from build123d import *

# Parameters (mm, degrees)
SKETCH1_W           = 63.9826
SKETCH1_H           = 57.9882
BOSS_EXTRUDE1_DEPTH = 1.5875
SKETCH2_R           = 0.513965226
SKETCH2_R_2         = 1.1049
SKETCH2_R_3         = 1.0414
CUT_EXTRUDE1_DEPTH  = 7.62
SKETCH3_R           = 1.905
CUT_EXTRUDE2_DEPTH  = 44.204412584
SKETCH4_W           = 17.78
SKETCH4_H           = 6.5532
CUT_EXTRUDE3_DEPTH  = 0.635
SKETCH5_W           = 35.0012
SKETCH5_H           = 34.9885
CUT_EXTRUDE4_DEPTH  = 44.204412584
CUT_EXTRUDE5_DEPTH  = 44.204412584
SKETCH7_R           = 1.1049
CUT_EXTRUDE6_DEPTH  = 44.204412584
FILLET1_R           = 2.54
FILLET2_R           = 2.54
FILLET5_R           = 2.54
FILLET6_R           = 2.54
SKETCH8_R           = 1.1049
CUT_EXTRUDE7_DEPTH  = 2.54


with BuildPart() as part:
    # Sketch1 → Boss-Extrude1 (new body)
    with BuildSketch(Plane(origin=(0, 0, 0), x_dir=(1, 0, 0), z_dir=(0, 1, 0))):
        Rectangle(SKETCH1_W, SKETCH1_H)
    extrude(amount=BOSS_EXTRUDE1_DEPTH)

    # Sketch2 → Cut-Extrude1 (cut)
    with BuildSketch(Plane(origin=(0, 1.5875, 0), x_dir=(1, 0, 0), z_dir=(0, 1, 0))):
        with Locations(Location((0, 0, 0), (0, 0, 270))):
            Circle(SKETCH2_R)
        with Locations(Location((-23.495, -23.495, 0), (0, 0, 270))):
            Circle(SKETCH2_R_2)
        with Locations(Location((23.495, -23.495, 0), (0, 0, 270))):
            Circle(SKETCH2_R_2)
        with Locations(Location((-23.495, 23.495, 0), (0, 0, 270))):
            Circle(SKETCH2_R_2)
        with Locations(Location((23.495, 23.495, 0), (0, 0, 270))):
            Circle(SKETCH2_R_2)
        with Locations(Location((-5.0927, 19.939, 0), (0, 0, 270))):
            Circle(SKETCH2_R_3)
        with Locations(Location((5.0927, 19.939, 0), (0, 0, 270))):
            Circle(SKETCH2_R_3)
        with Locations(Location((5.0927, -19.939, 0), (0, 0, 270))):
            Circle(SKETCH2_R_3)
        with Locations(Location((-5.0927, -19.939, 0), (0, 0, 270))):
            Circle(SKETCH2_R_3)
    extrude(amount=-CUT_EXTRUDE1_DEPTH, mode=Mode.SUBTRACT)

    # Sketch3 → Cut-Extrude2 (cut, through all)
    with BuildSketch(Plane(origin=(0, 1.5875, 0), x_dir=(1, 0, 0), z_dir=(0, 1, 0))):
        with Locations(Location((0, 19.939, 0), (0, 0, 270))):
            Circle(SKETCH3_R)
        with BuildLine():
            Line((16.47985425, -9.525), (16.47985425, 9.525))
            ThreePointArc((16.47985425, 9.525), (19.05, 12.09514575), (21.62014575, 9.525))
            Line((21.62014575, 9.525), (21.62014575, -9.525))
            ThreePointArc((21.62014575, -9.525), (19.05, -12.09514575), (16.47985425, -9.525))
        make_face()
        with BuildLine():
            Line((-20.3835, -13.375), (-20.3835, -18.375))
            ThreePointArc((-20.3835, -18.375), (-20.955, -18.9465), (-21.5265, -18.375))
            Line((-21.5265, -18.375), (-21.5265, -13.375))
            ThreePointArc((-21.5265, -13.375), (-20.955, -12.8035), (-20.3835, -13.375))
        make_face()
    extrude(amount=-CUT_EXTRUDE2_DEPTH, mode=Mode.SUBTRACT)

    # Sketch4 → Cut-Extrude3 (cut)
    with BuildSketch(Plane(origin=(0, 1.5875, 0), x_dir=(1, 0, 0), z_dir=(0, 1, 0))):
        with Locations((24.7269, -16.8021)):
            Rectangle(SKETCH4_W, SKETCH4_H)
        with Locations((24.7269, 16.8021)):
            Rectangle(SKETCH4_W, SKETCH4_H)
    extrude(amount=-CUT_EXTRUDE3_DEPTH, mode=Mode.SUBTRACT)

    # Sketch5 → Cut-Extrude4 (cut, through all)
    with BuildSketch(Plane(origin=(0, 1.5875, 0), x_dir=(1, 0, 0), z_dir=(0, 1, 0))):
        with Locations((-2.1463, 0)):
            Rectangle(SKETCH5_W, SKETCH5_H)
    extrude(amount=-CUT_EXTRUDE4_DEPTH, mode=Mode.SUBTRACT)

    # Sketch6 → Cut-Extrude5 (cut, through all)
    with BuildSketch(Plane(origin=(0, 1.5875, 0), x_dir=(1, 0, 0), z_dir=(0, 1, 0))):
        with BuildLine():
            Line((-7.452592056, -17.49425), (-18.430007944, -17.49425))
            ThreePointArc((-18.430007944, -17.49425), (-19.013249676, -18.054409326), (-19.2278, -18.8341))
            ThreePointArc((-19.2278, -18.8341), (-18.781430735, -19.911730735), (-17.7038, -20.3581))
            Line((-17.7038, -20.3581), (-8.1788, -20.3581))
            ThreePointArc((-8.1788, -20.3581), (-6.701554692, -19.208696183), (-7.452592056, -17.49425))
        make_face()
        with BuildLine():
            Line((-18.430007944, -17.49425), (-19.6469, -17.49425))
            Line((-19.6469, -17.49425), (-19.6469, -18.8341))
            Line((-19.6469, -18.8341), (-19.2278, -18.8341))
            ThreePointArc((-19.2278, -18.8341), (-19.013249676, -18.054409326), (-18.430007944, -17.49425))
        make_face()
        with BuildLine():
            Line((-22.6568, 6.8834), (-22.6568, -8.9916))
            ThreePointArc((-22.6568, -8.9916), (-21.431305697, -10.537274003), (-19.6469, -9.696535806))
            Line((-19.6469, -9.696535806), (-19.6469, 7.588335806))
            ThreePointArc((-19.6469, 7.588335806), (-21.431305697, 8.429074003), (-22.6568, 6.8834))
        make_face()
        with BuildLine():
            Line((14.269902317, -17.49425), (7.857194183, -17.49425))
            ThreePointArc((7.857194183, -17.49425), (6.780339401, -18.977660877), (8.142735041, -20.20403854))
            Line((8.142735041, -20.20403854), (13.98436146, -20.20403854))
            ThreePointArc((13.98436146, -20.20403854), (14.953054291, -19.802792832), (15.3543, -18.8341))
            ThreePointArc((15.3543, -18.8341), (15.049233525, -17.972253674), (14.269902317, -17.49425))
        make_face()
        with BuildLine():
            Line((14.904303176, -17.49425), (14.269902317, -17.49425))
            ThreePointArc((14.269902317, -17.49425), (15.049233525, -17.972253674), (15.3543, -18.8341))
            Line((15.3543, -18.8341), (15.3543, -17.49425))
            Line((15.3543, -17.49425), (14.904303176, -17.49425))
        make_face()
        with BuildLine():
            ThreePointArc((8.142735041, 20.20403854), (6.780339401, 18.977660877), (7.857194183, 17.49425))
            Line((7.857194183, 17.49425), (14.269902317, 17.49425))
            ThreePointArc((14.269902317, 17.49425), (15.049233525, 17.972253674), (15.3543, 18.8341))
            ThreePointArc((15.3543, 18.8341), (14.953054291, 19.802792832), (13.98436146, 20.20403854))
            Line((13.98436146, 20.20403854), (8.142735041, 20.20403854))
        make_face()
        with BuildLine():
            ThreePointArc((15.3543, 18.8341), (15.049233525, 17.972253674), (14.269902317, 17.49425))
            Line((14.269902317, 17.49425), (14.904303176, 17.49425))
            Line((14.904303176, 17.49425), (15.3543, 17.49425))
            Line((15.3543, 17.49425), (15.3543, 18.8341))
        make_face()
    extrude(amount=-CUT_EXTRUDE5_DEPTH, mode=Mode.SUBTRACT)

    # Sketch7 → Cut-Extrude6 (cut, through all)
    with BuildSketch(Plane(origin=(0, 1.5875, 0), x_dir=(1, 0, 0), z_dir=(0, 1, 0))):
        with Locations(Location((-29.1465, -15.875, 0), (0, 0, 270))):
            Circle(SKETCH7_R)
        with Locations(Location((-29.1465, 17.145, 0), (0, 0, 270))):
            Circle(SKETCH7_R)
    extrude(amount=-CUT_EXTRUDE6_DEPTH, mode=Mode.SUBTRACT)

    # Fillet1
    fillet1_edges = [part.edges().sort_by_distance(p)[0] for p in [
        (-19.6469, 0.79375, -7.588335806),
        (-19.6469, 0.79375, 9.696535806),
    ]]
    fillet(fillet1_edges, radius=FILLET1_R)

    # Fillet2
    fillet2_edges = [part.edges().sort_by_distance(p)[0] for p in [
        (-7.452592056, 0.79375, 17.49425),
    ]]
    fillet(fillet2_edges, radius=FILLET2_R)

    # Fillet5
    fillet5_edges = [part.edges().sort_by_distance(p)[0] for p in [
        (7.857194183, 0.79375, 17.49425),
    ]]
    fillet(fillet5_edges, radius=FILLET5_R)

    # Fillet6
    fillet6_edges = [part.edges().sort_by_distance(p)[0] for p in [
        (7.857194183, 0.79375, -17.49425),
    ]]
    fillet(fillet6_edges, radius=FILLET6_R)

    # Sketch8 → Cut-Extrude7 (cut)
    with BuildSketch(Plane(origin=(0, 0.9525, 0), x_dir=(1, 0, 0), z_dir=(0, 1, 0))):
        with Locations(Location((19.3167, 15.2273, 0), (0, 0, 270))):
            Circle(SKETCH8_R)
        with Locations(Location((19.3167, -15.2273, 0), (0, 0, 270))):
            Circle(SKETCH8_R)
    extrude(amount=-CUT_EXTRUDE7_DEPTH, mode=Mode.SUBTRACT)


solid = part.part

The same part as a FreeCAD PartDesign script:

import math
import FreeCAD as App
import Part
import Sketcher
Q = App.Units.Quantity


def edges_at(feature, points):
    """Names of the edges that pass closest to the given points."""
    edges = feature.Shape.Edges
    near = lambda p: min(range(len(edges)), key=lambda i: edges[i].distToShape(Part.Vertex(*p))[0])
    return sorted({f"Edge{near(p) + 1}" for p in points})

doc = App.newDocument("Part")
body = doc.addObject("PartDesign::Body", "Body")

sketch1 = doc.addObject("Sketcher::SketchObject", "Sketch")
body.addObject(sketch1)
sketch1.AttachmentSupport = (doc.XZ_Plane, [""])
sketch1.MapMode = "FlatFace"
sketch1.addGeometry([
    Part.LineSegment(App.Vector(-32, -29, 0), App.Vector(-32, 29, 0)),
    Part.LineSegment(App.Vector(-32, 29, 0), App.Vector(32, 29, 0)),
    Part.LineSegment(App.Vector(32, 29, 0), App.Vector(32, -29, 0)),
    Part.LineSegment(App.Vector(32, -29, 0), App.Vector(-32, -29, 0)),
], False)
sketch1.addConstraint([
    Sketcher.Constraint("Coincident", 0, 2, 1, 1),
    Sketcher.Constraint("Coincident", 1, 2, 2, 1),
    Sketcher.Constraint("Coincident", 2, 2, 3, 1),
    Sketcher.Constraint("Coincident", 3, 2, 0, 1),
    Sketcher.Constraint("Vertical", 0),
    Sketcher.Constraint("Horizontal", 1),
    Sketcher.Constraint("Vertical", 2),
    Sketcher.Constraint("Horizontal", 3),
    Sketcher.Constraint("Symmetric", 0, 2, 2, 2, -1, 1),
    Sketcher.Constraint("DistanceX", 1, 1, 1, 2, Q("2.519 in")),
    Sketcher.Constraint("DistanceY", 0, 1, 0, 2, Q("2.283 in")),
])
pad1 = doc.addObject("PartDesign::Pad", "Pad")
body.addObject(pad1)
pad1.Profile = sketch1
pad1.Length = Q("0.0625 in")
pad1.Reversed = True

sketch2 = doc.addObject("Sketcher::SketchObject", "Sketch001")
body.addObject(sketch2)
sketch2.AttachmentSupport = (doc.XZ_Plane, [""])
sketch2.MapMode = "FlatFace"
sketch2.AttachmentOffset = App.Placement(App.Vector(0, 0, -0.0625 * 25.4), App.Rotation())
sketch2.addGeometry([
    Part.Circle(App.Vector(0, 0, 0), App.Vector(0, 0, 1), 0.5),
    Part.Circle(App.Vector(-23.5, 23.5, 0), App.Vector(0, 0, 1), 1.1),
    Part.Circle(App.Vector(23.5, 23.5, 0), App.Vector(0, 0, 1), 1.1),
    Part.Circle(App.Vector(-23.5, -23.5, 0), App.Vector(0, 0, 1), 1.1),
    Part.Circle(App.Vector(23.5, -23.5, 0), App.Vector(0, 0, 1), 1.1),
    Part.Circle(App.Vector(-5.1, -19.9, 0), App.Vector(0, 0, 1), 1),
    Part.Circle(App.Vector(5.1, -19.9, 0), App.Vector(0, 0, 1), 1),
    Part.Circle(App.Vector(5.1, 19.9, 0), App.Vector(0, 0, 1), 1),
    Part.Circle(App.Vector(-5.1, 19.9, 0), App.Vector(0, 0, 1), 1),
], False)
sketch2.addConstraint([
    Sketcher.Constraint("Coincident", 0, 3, -1, 1),
    Sketcher.Constraint("Equal", 1, 2),
    Sketcher.Constraint("Equal", 2, 3),
    Sketcher.Constraint("Equal", 3, 4),
    Sketcher.Constraint("Equal", 5, 6),
    Sketcher.Constraint("Equal", 6, 7),
    Sketcher.Constraint("Equal", 7, 8),
    Sketcher.Constraint("Symmetric", 2, 3, 3, 3, -1, 1),
    Sketcher.Constraint("Symmetric", 1, 3, 4, 3, -1, 1),
    Sketcher.Constraint("Symmetric", 5, 3, 7, 3, -1, 1),
    Sketcher.Constraint("Symmetric", 6, 3, 8, 3, -1, 1),
    Sketcher.Constraint("Symmetric", 1, 3, 2, 3, -2),
    Sketcher.Constraint("Symmetric", 5, 3, 6, 3, -2),
    Sketcher.Constraint("Diameter", 1, Q("0.087 in")),
    Sketcher.Constraint("Diameter", 5, Q("0.082 in")),
    Sketcher.Constraint("DistanceX", 1, 3, 2, 3, Q("1.85 in")),
    Sketcher.Constraint("DistanceY", 3, 3, 1, 3, Q("1.85 in")),
    Sketcher.Constraint("DistanceY", 3, 3, 5, 3, Q("0.14 in")),
    Sketcher.Constraint("Diameter", 0, Q("1.02793 mm")),
    Sketcher.Constraint("DistanceX", 5, 3, 6, 3, Q("0.401 in")),
])
pocket1 = doc.addObject("PartDesign::Pocket", "Pocket")
body.addObject(pocket1)
pocket1.Profile = sketch2
pocket1.Length = Q("0.3 in")
pocket1.Reversed = True

sketch3 = doc.addObject("Sketcher::SketchObject", "Sketch002")
body.addObject(sketch3)
sketch3.AttachmentSupport = (doc.XZ_Plane, [""])
sketch3.MapMode = "FlatFace"
sketch3.AttachmentOffset = App.Placement(App.Vector(0, 0, -0.0625 * 25.4), App.Rotation())
sketch3.addGeometry([
    Part.Circle(App.Vector(0, -19.9, 0), App.Vector(0, 0, 1), 1.9),
    Part.LineSegment(App.Vector(16.5, -9.5, 0), App.Vector(16.5, 9.5, 0)),
    Part.ArcOfCircle(Part.Circle(App.Vector(19.1, 9.5, 0), App.Vector(0, 0, 1), 2.6), math.radians(0), math.radians(180)),
    Part.LineSegment(App.Vector(21.6, 9.5, 0), App.Vector(21.6, -9.5, 0)),
    Part.ArcOfCircle(Part.Circle(App.Vector(19.1, -9.5, 0), App.Vector(0, 0, 1), 2.6), math.radians(180), math.radians(360)),
    Part.LineSegment(App.Vector(-20.4, 18.4, 0), App.Vector(-20.4, 13.4, 0)),
    Part.ArcOfCircle(Part.Circle(App.Vector(-21, 13.4, 0), App.Vector(0, 0, 1), 0.6), math.radians(180), math.radians(360)),
    Part.LineSegment(App.Vector(-21.5, 13.4, 0), App.Vector(-21.5, 18.4, 0)),
    Part.ArcOfCircle(Part.Circle(App.Vector(-21, 18.4, 0), App.Vector(0, 0, 1), 0.6), math.radians(0), math.radians(180)),
], False)
sketch3.addConstraint([
    Sketcher.Constraint("Tangent", 1, 2, 2, 2),
    Sketcher.Constraint("Tangent", 2, 1, 3, 1),
    Sketcher.Constraint("Tangent", 3, 2, 4, 2),
    Sketcher.Constraint("Tangent", 4, 1, 1, 1),
    Sketcher.Constraint("Tangent", 5, 2, 6, 2),
    Sketcher.Constraint("Tangent", 6, 1, 7, 1),
    Sketcher.Constraint("Tangent", 7, 2, 8, 2),
    Sketcher.Constraint("Tangent", 8, 1, 5, 1),
    Sketcher.Constraint("Vertical", 1),
    Sketcher.Constraint("Vertical", 3),
    Sketcher.Constraint("Vertical", 5),
    Sketcher.Constraint("Vertical", 7),
    Sketcher.Constraint("PointOnObject", 0, 3, -2),
    Sketcher.Constraint("Diameter", 0, Q("0.15 in")),
    Sketcher.Constraint("DistanceY", 1, 1, 1, 2, Q("0.75 in")),
    Sketcher.Constraint("Radius", 6, Q("0.0225 in")),
    Sketcher.Constraint("DistanceX", -1, 1, 2, 3, Q("0.75 in")),
    Sketcher.Constraint("DistanceY", 0, 3, 2, 3, Q("1.16 in")),
    Sketcher.Constraint("DistanceY", 0, 3, -1, 1, Q("0.785 in")),
    Sketcher.Constraint("DistanceX", 6, 3, -1, 1, Q("0.825 in")),
    Sketcher.Constraint("DistanceY", 5, 2, 5, 1, Q("5 mm")),
    Sketcher.Constraint("Radius", 2, Q("2.570146 mm")),
    Sketcher.Constraint("DistanceY", -1, 1, 6, 3, Q("13.375 mm")),
])
pocket2 = doc.addObject("PartDesign::Pocket", "Pocket001")
body.addObject(pocket2)
pocket2.Profile = sketch3
pocket2.Type = "ThroughAll"
pocket2.Reversed = True

sketch4 = doc.addObject("Sketcher::SketchObject", "Sketch003")
body.addObject(sketch4)
sketch4.AttachmentSupport = (doc.XZ_Plane, [""])
sketch4.MapMode = "FlatFace"
sketch4.AttachmentOffset = App.Placement(App.Vector(0, 0, -0.0625 * 25.4), App.Rotation())
sketch4.addGeometry([
    Part.LineSegment(App.Vector(16, 14, 0), App.Vector(16, 20, 0)),
    Part.LineSegment(App.Vector(16, 20, 0), App.Vector(34, 20, 0)),
    Part.LineSegment(App.Vector(34, 20, 0), App.Vector(34, 14, 0)),
    Part.LineSegment(App.Vector(34, 14, 0), App.Vector(16, 14, 0)),
    Part.LineSegment(App.Vector(16, -20, 0), App.Vector(16, -14, 0)),
    Part.LineSegment(App.Vector(16, -14, 0), App.Vector(34, -14, 0)),
    Part.LineSegment(App.Vector(34, -14, 0), App.Vector(34, -20, 0)),
    Part.LineSegment(App.Vector(34, -20, 0), App.Vector(16, -20, 0)),
], False)
sketch4.addConstraint([
    Sketcher.Constraint("Coincident", 0, 2, 1, 1),
    Sketcher.Constraint("Coincident", 1, 2, 2, 1),
    Sketcher.Constraint("Coincident", 2, 2, 3, 1),
    Sketcher.Constraint("Coincident", 3, 2, 0, 1),
    Sketcher.Constraint("Coincident", 4, 2, 5, 1),
    Sketcher.Constraint("Coincident", 5, 2, 6, 1),
    Sketcher.Constraint("Coincident", 6, 2, 7, 1),
    Sketcher.Constraint("Coincident", 7, 2, 4, 1),
    Sketcher.Constraint("Vertical", 0),
    Sketcher.Constraint("Horizontal", 1),
    Sketcher.Constraint("Vertical", 2),
    Sketcher.Constraint("Horizontal", 3),
    Sketcher.Constraint("Vertical", 4),
    Sketcher.Constraint("Horizontal", 5),
    Sketcher.Constraint("Vertical", 6),
    Sketcher.Constraint("Horizontal", 7),
    Sketcher.Constraint("Symmetric", 3, 2, 4, 2, -1),
    Sketcher.Constraint("Symmetric", 1, 2, 6, 2, -1),
    Sketcher.Constraint("DistanceX", 1, 1, 1, 2, Q("0.7 in")),
    Sketcher.Constraint("DistanceY", 0, 1, 0, 2, Q("0.258 in")),
    Sketcher.Constraint("DistanceY", 4, 2, 3, 2, Q("1.065 in")),
    Sketcher.Constraint("DistanceX", -1, 1, 0, 2, Q("0.6235 in")),
])
pocket3 = doc.addObject("PartDesign::Pocket", "Pocket002")
body.addObject(pocket3)
pocket3.Profile = sketch4
pocket3.Length = Q("0.025 in")
pocket3.Reversed = True

sketch5 = doc.addObject("Sketcher::SketchObject", "Sketch004")
body.addObject(sketch5)
sketch5.AttachmentSupport = (doc.XZ_Plane, [""])
sketch5.MapMode = "FlatFace"
sketch5.AttachmentOffset = App.Placement(App.Vector(0, 0, -0.0625 * 25.4), App.Rotation())
sketch5.addGeometry([
    Part.LineSegment(App.Vector(-20, -17, 0), App.Vector(-20, 17, 0)),
    Part.LineSegment(App.Vector(-20, 17, 0), App.Vector(15, 17, 0)),
    Part.LineSegment(App.Vector(15, 17, 0), App.Vector(15, -17, 0)),
    Part.LineSegment(App.Vector(15, -17, 0), App.Vector(-20, -17, 0)),
], False)
sketch5.addConstraint([
    Sketcher.Constraint("Coincident", 0, 2, 1, 1),
    Sketcher.Constraint("Coincident", 1, 2, 2, 1),
    Sketcher.Constraint("Coincident", 2, 2, 3, 1),
    Sketcher.Constraint("Coincident", 3, 2, 0, 1),
    Sketcher.Constraint("Vertical", 0),
    Sketcher.Constraint("Horizontal", 1),
    Sketcher.Constraint("Vertical", 2),
    Sketcher.Constraint("Horizontal", 3),
    Sketcher.Constraint("DistanceX", 1, 1, 1, 2, Q("1.378 in")),
    Sketcher.Constraint("DistanceY", 0, 1, 0, 2, Q("1.3775 in")),
    Sketcher.Constraint("DistanceX", 0, 2, -1, 1, Q("0.7735 in")),
    Sketcher.Constraint("DistanceY", -1, 1, 0, 2, Q("17.49425 mm")),
])
pocket4 = doc.addObject("PartDesign::Pocket", "Pocket003")
body.addObject(pocket4)
pocket4.Profile = sketch5
pocket4.Type = "ThroughAll"
pocket4.Reversed = True

sketch6 = doc.addObject("Sketcher::SketchObject", "Sketch005")
body.addObject(sketch6)
sketch6.AttachmentSupport = (doc.XZ_Plane, [""])
sketch6.MapMode = "FlatFace"
sketch6.AttachmentOffset = App.Placement(App.Vector(0, 0, -0.0625 * 25.4), App.Rotation())
sketch6.addGeometry([
    Part.LineSegment(App.Vector(-7.45, 17.49, 0), App.Vector(-19.65, 17.49, 0)),
    Part.LineSegment(App.Vector(-19.65, 17.49, 0), App.Vector(-19.65, 18.83, 0)),
    Part.LineSegment(App.Vector(-19.65, 18.83, 0), App.Vector(-19.23, 18.83, 0)),
    Part.ArcOfCircle(Part.Circle(App.Vector(-17.7, 18.83, 0), App.Vector(0, 0, 1), 1.52), math.radians(90), math.radians(180)),
    Part.LineSegment(App.Vector(-17.7, 20.36, 0), App.Vector(-8.18, 20.36, 0)),
    Part.ArcOfCircle(Part.Circle(App.Vector(-8.18, 18.83, 0), App.Vector(0, 0, 1), 1.52), math.radians(-62), math.radians(90)),
    Part.LineSegment(App.Vector(-22.66, -6.88, 0), App.Vector(-22.66, 8.99, 0)),
    Part.ArcOfCircle(Part.Circle(App.Vector(-21.07, 8.99, 0), App.Vector(0, 0, 1), 1.59), math.radians(26), math.radians(180)),
    Part.LineSegment(App.Vector(-19.65, 9.7, 0), App.Vector(-19.65, -7.59, 0)),
    Part.ArcOfCircle(Part.Circle(App.Vector(-21.07, -6.88, 0), App.Vector(0, 0, 1), 1.59), math.radians(-180), math.radians(-26)),
    Part.ArcOfCircle(Part.Circle(App.Vector(8.14, 18.83, 0), App.Vector(0, 0, 1), 1.37), math.radians(90), math.radians(258)),
    Part.LineSegment(App.Vector(8.14, 20.2, 0), App.Vector(13.98, 20.2, 0)),
    Part.ArcOfCircle(Part.Circle(App.Vector(13.98, 18.83, 0), App.Vector(0, 0, 1), 1.37), math.radians(0), math.radians(90)),
    Part.LineSegment(App.Vector(15.35, 18.83, 0), App.Vector(15.35, 17.49, 0)),
    Part.LineSegment(App.Vector(15.35, 17.49, 0), App.Vector(7.86, 17.49, 0)),
    Part.ArcOfCircle(Part.Circle(App.Vector(8.14, -18.83, 0), App.Vector(0, 0, 1), 1.37), math.radians(102), math.radians(270)),
    Part.LineSegment(App.Vector(7.86, -17.49, 0), App.Vector(15.35, -17.49, 0)),
    Part.LineSegment(App.Vector(15.35, -17.49, 0), App.Vector(15.35, -18.83, 0)),
    Part.ArcOfCircle(Part.Circle(App.Vector(13.98, -18.83, 0), App.Vector(0, 0, 1), 1.37), math.radians(-90), math.radians(0)),
    Part.LineSegment(App.Vector(13.98, -20.2, 0), App.Vector(8.14, -20.2, 0)),
], False)
sketch6.addConstraint([
    Sketcher.Constraint("Coincident", 0, 2, 1, 1),
    Sketcher.Constraint("Coincident", 1, 2, 2, 1),
    Sketcher.Constraint("Coincident", 2, 2, 3, 2),
    Sketcher.Constraint("Tangent", 3, 1, 4, 1),
    Sketcher.Constraint("Tangent", 4, 2, 5, 2),
    Sketcher.Constraint("Coincident", 5, 1, 0, 1),
    Sketcher.Constraint("Tangent", 6, 2, 7, 2),
    Sketcher.Constraint("Coincident", 7, 1, 8, 1),
    Sketcher.Constraint("Coincident", 8, 2, 9, 2),
    Sketcher.Constraint("Tangent", 9, 1, 6, 1),
    Sketcher.Constraint("Tangent", 10, 1, 11, 1),
    Sketcher.Constraint("Tangent", 11, 2, 12, 2),
    Sketcher.Constraint("Tangent", 12, 1, 13, 1),
    Sketcher.Constraint("Coincident", 13, 2, 14, 1),
    Sketcher.Constraint("Coincident", 14, 2, 10, 2),
    Sketcher.Constraint("Coincident", 15, 1, 16, 1),
    Sketcher.Constraint("Coincident", 16, 2, 17, 1),
    Sketcher.Constraint("Tangent", 17, 2, 18, 2),
    Sketcher.Constraint("Tangent", 18, 1, 19, 1),
    Sketcher.Constraint("Tangent", 19, 2, 15, 2),
    Sketcher.Constraint("Horizontal", 0),
    Sketcher.Constraint("Vertical", 1),
    Sketcher.Constraint("Horizontal", 2),
    Sketcher.Constraint("Horizontal", 4),
    Sketcher.Constraint("Vertical", 6),
    Sketcher.Constraint("Vertical", 8),
    Sketcher.Constraint("Horizontal", 11),
    Sketcher.Constraint("Vertical", 13),
    Sketcher.Constraint("Horizontal", 14),
    Sketcher.Constraint("Horizontal", 16),
    Sketcher.Constraint("Vertical", 17),
    Sketcher.Constraint("Horizontal", 19),
    Sketcher.Constraint("Equal", 3, 5),
    Sketcher.Constraint("Equal", 7, 9),
    Sketcher.Constraint("Equal", 10, 12),
    Sketcher.Constraint("Equal", 12, 15),
    Sketcher.Constraint("Equal", 15, 18),
    Sketcher.Constraint("Symmetric", 10, 3, 15, 3, -1),
    Sketcher.Constraint("Symmetric", 13, 2, 16, 2, -1),
    Sketcher.Constraint("Horizontal", 5, 3, 10, 3),
    Sketcher.Constraint("Horizontal", 12, 3, 1, 2),
    Sketcher.Constraint("Horizontal", 5, 1, 13, 2),
    Sketcher.Constraint("Vertical", 1, 2, 7, 1),
    Sketcher.Constraint("Radius", 3, Q("0.06 in")),
    Sketcher.Constraint("Radius", 7, Q("0.0625 in")),
    Sketcher.Constraint("DistanceX", 4, 1, 4, 2, Q("0.375 in")),
    Sketcher.Constraint("DistanceY", 6, 1, 6, 2, Q("0.625 in")),
    Sketcher.Constraint("DistanceX", 2, 1, 2, 2, Q("0.0165 in")),
    Sketcher.Constraint("DistanceX", 3, 3, -1, 1, Q("0.697 in")),
    Sketcher.Constraint("DistanceY", -1, 1, 7, 3, Q("0.354 in")),
    Sketcher.Constraint("DistanceX", 6, 2, -1, 1, Q("0.892 in")),
    Sketcher.Constraint("Radius", 10, Q("1.369939 mm")),
    Sketcher.Constraint("DistanceY", 15, 3, 10, 3, Q("1.483 in")),
    Sketcher.Constraint("DistanceX", -1, 1, 12, 1, Q("0.6045 in")),
    Sketcher.Constraint("DistanceY", 16, 2, 13, 2, Q("1.3775 in")),
    Sketcher.Constraint("DistanceX", 11, 1, 11, 2, Q("5.841626 mm")),
])
pocket5 = doc.addObject("PartDesign::Pocket", "Pocket004")
body.addObject(pocket5)
pocket5.Profile = sketch6
pocket5.Type = "ThroughAll"
pocket5.Reversed = True

sketch7 = doc.addObject("Sketcher::SketchObject", "Sketch006")
body.addObject(sketch7)
sketch7.AttachmentSupport = (doc.XZ_Plane, [""])
sketch7.MapMode = "FlatFace"
sketch7.AttachmentOffset = App.Placement(App.Vector(0, 0, -0.0625 * 25.4), App.Rotation())
sketch7.addGeometry([
    Part.Circle(App.Vector(-29.1, 15.9, 0), App.Vector(0, 0, 1), 1.1),
    Part.Circle(App.Vector(-29.1, -17.1, 0), App.Vector(0, 0, 1), 1.1),
], False)
sketch7.addConstraint([
    Sketcher.Constraint("Equal", 0, 1),
    Sketcher.Constraint("Vertical", 0, 3, 1, 3),
    Sketcher.Constraint("Diameter", 0, Q("0.087 in")),
    Sketcher.Constraint("DistanceY", 1, 3, 0, 3, Q("1.3 in")),
    Sketcher.Constraint("DistanceY", -1, 1, 0, 3, Q("0.625 in")),
    Sketcher.Constraint("DistanceX", 0, 3, -1, 1, Q("1.1475 in")),
])
pocket6 = doc.addObject("PartDesign::Pocket", "Pocket005")
body.addObject(pocket6)
pocket6.Profile = sketch7
pocket6.Type = "ThroughAll"
pocket6.Reversed = True
doc.recompute()

fillet = doc.addObject("PartDesign::Fillet", "Fillet")
body.addObject(fillet)
fillet.Base = (pocket6, edges_at(pocket6, [(-19.647, 0.794, -7.588), (-19.647, 0.794, 9.697)]))
fillet.Radius = Q("0.1 in")
doc.recompute()

fillet2 = doc.addObject("PartDesign::Fillet", "Fillet001")
body.addObject(fillet2)
fillet2.Base = (fillet, edges_at(fillet, [(-7.453, 0.794, 17.494)]))
fillet2.Radius = Q("0.1 in")
doc.recompute()

fillet3 = doc.addObject("PartDesign::Fillet", "Fillet002")
body.addObject(fillet3)
fillet3.Base = (fillet2, edges_at(fillet2, [(7.857, 0.794, 17.494)]))
fillet3.Radius = Q("0.1 in")
doc.recompute()

fillet4 = doc.addObject("PartDesign::Fillet", "Fillet003")
body.addObject(fillet4)
fillet4.Base = (fillet3, edges_at(fillet3, [(7.857, 0.794, -17.494)]))
fillet4.Radius = Q("0.1 in")

sketch8 = doc.addObject("Sketcher::SketchObject", "Sketch007")
body.addObject(sketch8)
sketch8.AttachmentSupport = (doc.XZ_Plane, [""])
sketch8.MapMode = "FlatFace"
sketch8.AttachmentOffset = App.Placement(App.Vector(0, 0, -0.0375 * 25.4), App.Rotation())
sketch8.addGeometry([
    Part.Circle(App.Vector(19.3, -15.2, 0), App.Vector(0, 0, 1), 1.1),
    Part.Circle(App.Vector(19.3, 15.2, 0), App.Vector(0, 0, 1), 1.1),
], False)
sketch8.addConstraint([
    Sketcher.Constraint("Equal", 0, 1),
    Sketcher.Constraint("Symmetric", 0, 3, 1, 3, -1),
    Sketcher.Constraint("Diameter", 0, Q("0.087 in")),
    Sketcher.Constraint("DistanceY", 0, 3, 1, 3, Q("1.199 in")),
    Sketcher.Constraint("DistanceX", -1, 1, 0, 3, Q("0.7605 in")),
])
pocket7 = doc.addObject("PartDesign::Pocket", "Pocket006")
body.addObject(pocket7)
pocket7.Profile = sketch8
pocket7.Length = Q("0.1 in")
pocket7.Reversed = True

doc.recompute()
